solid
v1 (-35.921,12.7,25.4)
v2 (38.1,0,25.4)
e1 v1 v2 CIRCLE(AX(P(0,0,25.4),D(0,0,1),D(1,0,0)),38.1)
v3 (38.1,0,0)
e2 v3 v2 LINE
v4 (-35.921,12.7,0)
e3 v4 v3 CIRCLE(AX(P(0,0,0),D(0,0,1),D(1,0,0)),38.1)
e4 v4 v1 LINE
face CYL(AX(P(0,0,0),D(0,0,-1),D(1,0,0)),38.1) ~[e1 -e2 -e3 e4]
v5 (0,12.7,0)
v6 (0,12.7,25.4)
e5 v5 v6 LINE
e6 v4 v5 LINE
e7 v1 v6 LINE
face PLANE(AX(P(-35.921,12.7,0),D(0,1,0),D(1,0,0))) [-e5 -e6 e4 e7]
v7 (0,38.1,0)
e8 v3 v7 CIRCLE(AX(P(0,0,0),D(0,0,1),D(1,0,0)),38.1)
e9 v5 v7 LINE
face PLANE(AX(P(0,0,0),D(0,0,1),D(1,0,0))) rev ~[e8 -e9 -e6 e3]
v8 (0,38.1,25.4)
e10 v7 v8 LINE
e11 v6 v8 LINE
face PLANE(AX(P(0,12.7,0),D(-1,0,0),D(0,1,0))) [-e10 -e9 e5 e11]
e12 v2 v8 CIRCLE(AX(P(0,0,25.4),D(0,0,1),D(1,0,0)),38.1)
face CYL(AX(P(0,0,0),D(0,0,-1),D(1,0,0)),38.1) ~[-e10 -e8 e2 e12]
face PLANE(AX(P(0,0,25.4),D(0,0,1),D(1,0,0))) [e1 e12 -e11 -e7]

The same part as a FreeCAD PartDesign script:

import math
import FreeCAD as App
import Part
import Sketcher
from FreeCAD import Vector
Q = App.Units.Quantity

doc = App.newDocument("Part")
body = doc.addObject("PartDesign::Body", "Body")

# Sketch on XY plane
sketch1 = body.newObject("Sketcher::SketchObject", "Sketch")
sketch1.AttachmentSupport = (doc.getObject("XY_Plane"), [""])
sketch1.MapMode = "FlatFace"
sketch1.addGeometry(Part.ArcOfCircle(Part.Circle(Vector(0, 0, 0), Vector(0, 0, 1), 38), math.radians(161), math.radians(450)), False)
sketch1.addGeometry(Part.LineSegment(Vector(0, 38, 0), Vector(0, 13, 0)), False)
sketch1.addGeometry(Part.LineSegment(Vector(0, 13, 0), Vector(-36, 13, 0)), False)
sketch1.addConstraint(Sketcher.Constraint("Coincident", 0, 2, 1, 1))
sketch1.addConstraint(Sketcher.Constraint("Coincident", 1, 2, 2, 1))
sketch1.addConstraint(Sketcher.Constraint("Coincident", 2, 2, 0, 1))
sketch1.addConstraint(Sketcher.Constraint("Vertical", 1))
sketch1.addConstraint(Sketcher.Constraint("Horizontal", 2))
sketch1.addConstraint(Sketcher.Constraint("Coincident", 0, 3, -1, 1))
sketch1.addConstraint(Sketcher.Constraint("PointOnObject", 0, 2, -2))
sketch1.addConstraint(Sketcher.Constraint("Radius", 0, Q("1.5 in")))
sketch1.addConstraint(Sketcher.Constraint("DistanceY", 1, 2, 1, 1, Q("1 in")))
pad1 = body.newObject("PartDesign::Pad", "Pad")
pad1.Profile = sketch1
pad1.Length = Q("1 in")

doc.recompute()
